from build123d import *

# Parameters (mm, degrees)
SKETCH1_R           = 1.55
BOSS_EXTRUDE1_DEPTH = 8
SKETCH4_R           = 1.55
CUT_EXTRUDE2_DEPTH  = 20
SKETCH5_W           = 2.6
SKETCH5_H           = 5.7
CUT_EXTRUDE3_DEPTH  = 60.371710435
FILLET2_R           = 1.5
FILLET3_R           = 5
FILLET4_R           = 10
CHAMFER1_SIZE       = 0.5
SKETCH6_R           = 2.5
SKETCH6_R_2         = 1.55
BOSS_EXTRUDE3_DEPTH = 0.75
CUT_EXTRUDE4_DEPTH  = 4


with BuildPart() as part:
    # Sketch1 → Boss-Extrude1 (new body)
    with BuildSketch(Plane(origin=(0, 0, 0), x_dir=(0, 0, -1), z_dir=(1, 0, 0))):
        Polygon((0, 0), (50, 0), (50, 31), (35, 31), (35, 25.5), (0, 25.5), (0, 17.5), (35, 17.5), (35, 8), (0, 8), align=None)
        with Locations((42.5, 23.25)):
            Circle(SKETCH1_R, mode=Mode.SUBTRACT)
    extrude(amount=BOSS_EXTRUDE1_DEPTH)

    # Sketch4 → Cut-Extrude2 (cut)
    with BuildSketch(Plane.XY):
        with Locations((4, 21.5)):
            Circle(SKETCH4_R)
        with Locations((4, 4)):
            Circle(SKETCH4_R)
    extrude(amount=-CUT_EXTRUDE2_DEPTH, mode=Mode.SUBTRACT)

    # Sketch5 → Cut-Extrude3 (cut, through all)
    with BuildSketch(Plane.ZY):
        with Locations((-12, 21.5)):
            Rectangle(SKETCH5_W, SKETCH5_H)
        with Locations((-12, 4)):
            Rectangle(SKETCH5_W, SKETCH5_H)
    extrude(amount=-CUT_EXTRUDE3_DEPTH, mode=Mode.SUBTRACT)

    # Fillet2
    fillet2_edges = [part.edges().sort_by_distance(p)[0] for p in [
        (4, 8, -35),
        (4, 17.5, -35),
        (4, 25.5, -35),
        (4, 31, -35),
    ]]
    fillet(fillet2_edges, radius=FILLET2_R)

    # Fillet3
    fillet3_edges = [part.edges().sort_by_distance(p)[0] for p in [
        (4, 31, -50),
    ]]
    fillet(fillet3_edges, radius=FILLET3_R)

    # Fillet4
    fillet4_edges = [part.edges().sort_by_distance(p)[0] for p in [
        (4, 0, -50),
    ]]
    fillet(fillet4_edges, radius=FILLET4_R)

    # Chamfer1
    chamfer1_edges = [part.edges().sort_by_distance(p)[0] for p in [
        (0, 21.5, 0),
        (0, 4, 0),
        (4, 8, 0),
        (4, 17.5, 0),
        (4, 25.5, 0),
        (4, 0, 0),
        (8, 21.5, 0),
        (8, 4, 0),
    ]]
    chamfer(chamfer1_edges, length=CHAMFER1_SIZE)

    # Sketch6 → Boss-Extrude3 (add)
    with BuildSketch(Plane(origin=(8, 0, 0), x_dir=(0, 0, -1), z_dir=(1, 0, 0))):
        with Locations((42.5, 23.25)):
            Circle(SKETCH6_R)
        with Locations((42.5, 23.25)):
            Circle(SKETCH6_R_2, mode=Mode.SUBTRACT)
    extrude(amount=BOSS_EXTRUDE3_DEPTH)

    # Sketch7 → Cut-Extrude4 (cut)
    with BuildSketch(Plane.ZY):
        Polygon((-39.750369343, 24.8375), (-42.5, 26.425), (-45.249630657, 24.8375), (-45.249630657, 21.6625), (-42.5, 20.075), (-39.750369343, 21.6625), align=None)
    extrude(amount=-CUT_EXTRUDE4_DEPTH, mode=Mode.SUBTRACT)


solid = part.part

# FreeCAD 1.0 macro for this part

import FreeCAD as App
import Part
import Sketcher
Q = App.Units.Quantity


def edges_at(feature, points):
    """Names of the edges that pass closest to the given points."""
    edges = feature.Shape.Edges
    near = lambda p: min(range(len(edges)), key=lambda i: edges[i].distToShape(Part.Vertex(*p))[0])
    return sorted({f"Edge{near(p) + 1}" for p in points})


def add_polygon(sketch, points):
    """Adds a closed chain of lines whose ends are joined by coincident constraints."""
    first, n = sketch.GeometryCount, len(points)
    for a, b in zip(points, points[1:] + points[:1]):
        sketch.addGeometry(Part.LineSegment(App.Vector(*a, 0), App.Vector(*b, 0)), False)
    for i in range(n):
        sketch.addConstraint(Sketcher.Constraint("Coincident", first + i, 2, first + (i + 1) % n, 1))

doc = App.newDocument("Part")
body = doc.addObject("PartDesign::Body", "Body")

# Sketch on YZ plane
sketch1 = body.newObject("Sketcher::SketchObject", "Sketch")
sketch1.AttachmentSupport = (doc.getObject("YZ_Plane"), [""])
sketch1.MapMode = "FlatFace"
add_polygon(sketch1, [(0, 0), (0, -50), (31, -50), (31, -35), (25.5, -35), (25.5, 0), (17.5, 0), (17.5, -35), (8, -35), (8, 0)])  # lines 0-9
sketch1.addGeometry(Part.Circle(App.Vector(23.2, -42.5, 0), App.Vector(0, 0, 1), 1.6), False)  # 10
sketch1.addConstraint([
    Sketcher.Constraint("Vertical", 0),
    Sketcher.Constraint("Horizontal", 1),
    Sketcher.Constraint("Vertical", 2),
    Sketcher.Constraint("Horizontal", 3),
    Sketcher.Constraint("Vertical", 4),
    Sketcher.Constraint("Horizontal", 5),
    Sketcher.Constraint("Vertical", 6),
    Sketcher.Constraint("Horizontal", 7),
    Sketcher.Constraint("Vertical", 8),
    Sketcher.Constraint("Horizontal", 9),
    Sketcher.Constraint("Coincident", 9, 2, -1, 1),
    Sketcher.Constraint("PointOnObject", 4, 2, -1),
    Sketcher.Constraint("Horizontal", 3, 2, 6, 2),
    Sketcher.Constraint("Equal", 5, 9),
    Sketcher.Constraint("Diameter", 10, 3.1),
    Sketcher.Constraint("DistanceX", 1, 1, 1, 2, 31.0),
    Sketcher.Constraint("DistanceX", 5, 2, 5, 1, 8.0),
    Sketcher.Constraint("DistanceY", 0, 2, 0, 1, 50.0),
    Sketcher.Constraint("DistanceY", 2, 1, 2, 2, 15.0),
    Sketcher.Constraint("DistanceX", 3, 2, 3, 1, 5.5),
    Sketcher.Constraint("DistanceY", 10, 3, -1, 1, 42.5),
    Sketcher.Constraint("DistanceX", -1, 1, 10, 3, 23.25),
])
pad1 = body.newObject("PartDesign::Pad", "Pad")
pad1.Profile = sketch1
pad1.Length = 8

# Sketch on XY plane
sketch2 = body.newObject("Sketcher::SketchObject", "Sketch001")
sketch2.AttachmentSupport = (doc.getObject("XY_Plane"), [""])
sketch2.MapMode = "FlatFace"
sketch2.addGeometry([
    Part.Circle(App.Vector(4, 21.5, 0), App.Vector(0, 0, 1), 1.6),
    Part.Circle(App.Vector(4, 4, 0), App.Vector(0, 0, 1), 1.6),
], False)
sketch2.addConstraint([
    Sketcher.Constraint("Equal", 0, 1),
    Sketcher.Constraint("Vertical", 0, 3, 1, 3),
    Sketcher.Constraint("Diameter", 0, 3.1),
    Sketcher.Constraint("DistanceX", -1, 1, 0, 3, 4.0),
    Sketcher.Constraint("DistanceY", -1, 1, 1, 3, 4.0),
    Sketcher.Constraint("DistanceY", -1, 1, 0, 3, 21.5),
])
pocket1 = body.newObject("PartDesign::Pocket", "Pocket")
pocket1.Profile = sketch2
pocket1.Length = 20

# Sketch on YZ plane
sketch3 = body.newObject("Sketcher::SketchObject", "Sketch002")
sketch3.AttachmentSupport = (doc.getObject("YZ_Plane"), [""])
sketch3.MapMode = "FlatFace"
add_polygon(sketch3, [(24.4, -13.3), (18.6, -13.3), (18.6, -10.7), (24.4, -10.7)])  # lines 0-3
add_polygon(sketch3, [(6.8, -13.3), (1.1, -13.3), (1.1, -10.7), (6.8, -10.7)])  # lines 4-7
sketch3.addConstraint([
    Sketcher.Constraint("Horizontal", 0),
    Sketcher.Constraint("Vertical", 1),
    Sketcher.Constraint("Horizontal", 2),
    Sketcher.Constraint("Vertical", 3),
    Sketcher.Constraint("Horizontal", 4),
    Sketcher.Constraint("Vertical", 5),
    Sketcher.Constraint("Horizontal", 6),
    Sketcher.Constraint("Vertical", 7),
    Sketcher.Constraint("Horizontal", 3, 2, 4, 2),
    Sketcher.Constraint("Horizontal", 2, 2, 5, 2),
    Sketcher.Constraint("Equal", 2, 4),
    Sketcher.Constraint("DistanceX", 0, 2, 0, 1, 5.7),
    Sketcher.Constraint("DistanceY", 1, 1, 1, 2, 2.6),
    Sketcher.Constraint("DistanceY", 0, 2, -1, 1, 13.3),
    Sketcher.Constraint("DistanceX", 4, 2, 0, 2, 17.5),
    Sketcher.Constraint("DistanceX", -1, 1, 0, 2, 18.65),
])
pocket2 = body.newObject("PartDesign::Pocket", "Pocket001")
pocket2.Profile = sketch3
pocket2.Type = "ThroughAll"
pocket2.Reversed = True
doc.recompute()

fillet = body.newObject("PartDesign::Fillet", "Fillet")
fillet.Base = (pocket2, edges_at(pocket2, [
    (4, 8, -35),
    (4, 17.5, -35),
    (4, 25.5, -35),
    (4, 31, -35),
]))
fillet.Radius = 1.5
doc.recompute()

fillet2 = body.newObject("PartDesign::Fillet", "Fillet001")
fillet2.Base = (fillet, edges_at(fillet, [(4, 31, -50)]))
fillet2.Radius = 5
doc.recompute()

fillet3 = body.newObject("PartDesign::Fillet", "Fillet002")
fillet3.Base = (fillet2, edges_at(fillet2, [(4, 0, -50)]))
fillet3.Radius = 10
doc.recompute()

chamfer = body.newObject("PartDesign::Chamfer", "Chamfer")
chamfer.Base = (fillet3, edges_at(fillet3, [
    (0, 21.5, 0),
    (0, 4, 0),
    (4, 8, 0),
    (4, 17.5, 0),
    (4, 25.5, 0),
    (4, 0, 0),
    (8, 21.5, 0),
    (8, 4, 0),
]))
chamfer.Size = 0.5

# Sketch on YZ plane
sketch4 = body.newObject("Sketcher::SketchObject", "Sketch003")
sketch4.AttachmentSupport = (doc.getObject("YZ_Plane"), [""])
sketch4.MapMode = "FlatFace"
sketch4.AttachmentOffset = App.Placement(App.Vector(0, 0, 8), App.Rotation())
sketch4.addGeometry([
    Part.Circle(App.Vector(23.2, -42.5, 0), App.Vector(0, 0, 1), 2.5),
    Part.Circle(App.Vector(23.2, -42.5, 0), App.Vector(0, 0, 1), 1.6),
], False)
sketch4.addConstraint([
    Sketcher.Constraint("Coincident", 1, 3, 0, 3),
    Sketcher.Constraint("Diameter", 0, 5.0),
    Sketcher.Constraint("Diameter", 1, 3.1),
    Sketcher.Constraint("DistanceY", 0, 3, -1, 1, 42.5),
    Sketcher.Constraint("DistanceX", -1, 1, 0, 3, 23.25),
])
pad2 = body.newObject("PartDesign::Pad", "Pad001")
pad2.Profile = sketch4
pad2.Length = 0.75

# Sketch on YZ plane
sketch5 = body.newObject("Sketcher::SketchObject", "Sketch004")
sketch5.AttachmentSupport = (doc.getObject("YZ_Plane"), [""])
sketch5.MapMode = "FlatFace"
add_polygon(sketch5, [(24.8, -39.8), (26.4, -42.5), (24.8, -45.2), (21.7, -45.2), (20.1, -42.5), (21.7, -39.8)])  # lines 0-5
sketch5.addConstraint([
    Sketcher.Constraint("Horizontal", 2),
    Sketcher.Constraint("Horizontal", 5),
    Sketcher.Constraint("Parallel", 0, 3),
    Sketcher.Constraint("Parallel", 1, 4),
    Sketcher.Constraint("Horizontal", 0, 2, 3, 2),
    Sketcher.Constraint("Vertical", 2, 2, 4, 2),
    Sketcher.Constraint("Vertical", 1, 2, 5, 2),
    Sketcher.Constraint("Angle", 0, Q("-60 deg")),
    Sketcher.Constraint("DistanceY", 0, 2, -1, 1, 42.5),
    Sketcher.Constraint("DistanceX", 2, 2, 2, 1, 3.175),
    Sketcher.Constraint("DistanceX", 3, 2, 0, 2, 6.35),
    Sketcher.Constraint("DistanceX", -1, 1, 0, 2, 26.425),
])
pocket3 = body.newObject("PartDesign::Pocket", "Pocket002")
pocket3.Profile = sketch5
pocket3.Length = 4
pocket3.Reversed = True

doc.recompute()
